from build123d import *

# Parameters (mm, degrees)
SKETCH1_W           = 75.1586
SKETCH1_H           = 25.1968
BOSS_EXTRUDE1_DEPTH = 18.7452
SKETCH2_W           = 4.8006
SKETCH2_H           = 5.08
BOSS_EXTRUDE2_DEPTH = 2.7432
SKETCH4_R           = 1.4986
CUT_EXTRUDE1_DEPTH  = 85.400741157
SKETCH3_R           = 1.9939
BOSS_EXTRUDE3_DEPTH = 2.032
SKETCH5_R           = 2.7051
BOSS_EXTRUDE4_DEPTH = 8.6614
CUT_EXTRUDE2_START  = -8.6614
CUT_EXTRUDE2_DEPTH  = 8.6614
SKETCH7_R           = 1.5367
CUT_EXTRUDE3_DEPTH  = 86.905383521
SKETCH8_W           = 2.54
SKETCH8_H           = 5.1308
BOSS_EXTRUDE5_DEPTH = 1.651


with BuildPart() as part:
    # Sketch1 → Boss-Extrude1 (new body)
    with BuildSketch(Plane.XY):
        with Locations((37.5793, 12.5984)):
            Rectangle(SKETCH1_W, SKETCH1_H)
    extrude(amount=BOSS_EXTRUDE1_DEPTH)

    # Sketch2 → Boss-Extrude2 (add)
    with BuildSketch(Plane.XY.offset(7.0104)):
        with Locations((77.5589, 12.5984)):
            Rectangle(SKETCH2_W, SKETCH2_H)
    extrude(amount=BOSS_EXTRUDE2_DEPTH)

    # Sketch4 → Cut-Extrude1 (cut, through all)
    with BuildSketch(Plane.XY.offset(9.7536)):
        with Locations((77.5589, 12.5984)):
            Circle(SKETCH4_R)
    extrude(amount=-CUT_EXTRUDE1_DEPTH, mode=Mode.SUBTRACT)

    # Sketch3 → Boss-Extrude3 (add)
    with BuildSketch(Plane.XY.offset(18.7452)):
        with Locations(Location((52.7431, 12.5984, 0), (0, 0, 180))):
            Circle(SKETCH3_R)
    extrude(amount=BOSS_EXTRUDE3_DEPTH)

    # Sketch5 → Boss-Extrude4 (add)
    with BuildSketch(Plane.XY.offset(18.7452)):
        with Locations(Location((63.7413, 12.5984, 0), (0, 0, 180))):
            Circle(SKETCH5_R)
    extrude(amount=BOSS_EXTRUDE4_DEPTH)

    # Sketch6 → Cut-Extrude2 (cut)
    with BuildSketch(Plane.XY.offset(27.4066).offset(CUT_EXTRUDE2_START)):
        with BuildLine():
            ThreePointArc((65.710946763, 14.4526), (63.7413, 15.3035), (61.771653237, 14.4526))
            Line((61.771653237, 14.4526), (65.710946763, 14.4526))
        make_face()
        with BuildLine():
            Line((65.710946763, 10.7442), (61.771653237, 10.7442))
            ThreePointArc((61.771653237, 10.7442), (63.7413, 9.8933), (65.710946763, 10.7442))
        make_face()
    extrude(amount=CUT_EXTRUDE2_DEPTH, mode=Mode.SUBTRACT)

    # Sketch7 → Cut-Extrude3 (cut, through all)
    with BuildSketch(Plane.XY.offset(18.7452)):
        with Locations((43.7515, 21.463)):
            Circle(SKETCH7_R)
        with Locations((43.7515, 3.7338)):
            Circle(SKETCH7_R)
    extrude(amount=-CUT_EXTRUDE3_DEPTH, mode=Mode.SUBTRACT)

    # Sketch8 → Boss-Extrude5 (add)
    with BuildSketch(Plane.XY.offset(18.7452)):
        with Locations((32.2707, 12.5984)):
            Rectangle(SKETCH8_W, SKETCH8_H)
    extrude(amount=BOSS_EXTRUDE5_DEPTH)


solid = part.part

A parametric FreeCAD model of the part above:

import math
import FreeCAD as App
import Part
import Sketcher
from FreeCAD import Vector
Q = App.Units.Quantity

doc = App.newDocument("Part")
body = doc.addObject("PartDesign::Body", "Body")

# Sketch on XY plane
sketch1 = body.newObject("Sketcher::SketchObject", "Sketch")
sketch1.AttachmentSupport = (doc.getObject("XY_Plane"), [""])
sketch1.MapMode = "FlatFace"
sketch1.addGeometry(Part.LineSegment(Vector(0, 25.1968, 0), Vector(0, 0, 0)), False)
sketch1.addGeometry(Part.LineSegment(Vector(0, 0, 0), Vector(75.1586, 0, 0)), False)
sketch1.addGeometry(Part.LineSegment(Vector(75.1586, 0, 0), Vector(75.1586, 25.1968, 0)), False)
sketch1.addGeometry(Part.LineSegment(Vector(75.1586, 25.1968, 0), Vector(0, 25.1968, 0)), False)
sketch1.addConstraint(Sketcher.Constraint("Coincident", 0, 2, 1, 1))
sketch1.addConstraint(Sketcher.Constraint("Coincident", 1, 2, 2, 1))
sketch1.addConstraint(Sketcher.Constraint("Coincident", 2, 2, 3, 1))
sketch1.addConstraint(Sketcher.Constraint("Coincident", 3, 2, 0, 1))
sketch1.addConstraint(Sketcher.Constraint("Vertical", 0))
sketch1.addConstraint(Sketcher.Constraint("Horizontal", 1))
sketch1.addConstraint(Sketcher.Constraint("Vertical", 2))
sketch1.addConstraint(Sketcher.Constraint("Horizontal", 3))
sketch1.addConstraint(Sketcher.Constraint("Coincident", 0, 2, -1, 1))
sketch1.addConstraint(Sketcher.Constraint("DistanceX", 1, 1, 1, 2, Q("2.959 in")))
sketch1.addConstraint(Sketcher.Constraint("DistanceY", 0, 2, 0, 1, Q("0.992 in")))
pad1 = body.newObject("PartDesign::Pad", "Pad")
pad1.Profile = sketch1
pad1.Length = Q("0.738 in")

# Sketch on XY plane
sketch2 = body.newObject("Sketcher::SketchObject", "Sketch001")
sketch2.AttachmentSupport = (doc.getObject("XY_Plane"), [""])
sketch2.MapMode = "FlatFace"
sketch2.AttachmentOffset = App.Placement(Vector(0, 0, 0.276 * 25.4), App.Rotation())
sketch2.addGeometry(Part.LineSegment(Vector(75.1586, 15.1384, 0), Vector(75.1586, 10.0584, 0)), False)
sketch2.addGeometry(Part.LineSegment(Vector(75.1586, 10.0584, 0), Vector(79.9592, 10.0584, 0)), False)
sketch2.addGeometry(Part.LineSegment(Vector(79.9592, 10.0584, 0), Vector(79.9592, 15.1384, 0)), False)
sketch2.addGeometry(Part.LineSegment(Vector(79.9592, 15.1384, 0), Vector(75.1586, 15.1384, 0)), False)
sketch2.addConstraint(Sketcher.Constraint("Coincident", 0, 2, 1, 1))
sketch2.addConstraint(Sketcher.Constraint("Coincident", 1, 2, 2, 1))
sketch2.addConstraint(Sketcher.Constraint("Coincident", 2, 2, 3, 1))
sketch2.addConstraint(Sketcher.Constraint("Coincident", 3, 2, 0, 1))
sketch2.addConstraint(Sketcher.Constraint("Vertical", 0))
sketch2.addConstraint(Sketcher.Constraint("Horizontal", 1))
sketch2.addConstraint(Sketcher.Constraint("Vertical", 2))
sketch2.addConstraint(Sketcher.Constraint("Horizontal", 3))
sketch2.addConstraint(Sketcher.Constraint("DistanceY", 0, 2, 0, 1, Q("0.2 in")))
sketch2.addConstraint(Sketcher.Constraint("DistanceX", 1, 1, 1, 2, Q("0.189 in")))
sketch2.addConstraint(Sketcher.Constraint("DistanceX", -1, 1, 0, 2, Q("2.959 in")))
sketch2.addConstraint(Sketcher.Constraint("DistanceY", -1, 1, 0, 2, Q("0.396 in")))
pad2 = body.newObject("PartDesign::Pad", "Pad001")
pad2.Profile = sketch2
pad2.Length = Q("0.108 in")

# Sketch on XY plane
sketch3 = body.newObject("Sketcher::SketchObject", "Sketch002")
sketch3.AttachmentSupport = (doc.getObject("XY_Plane"), [""])
sketch3.MapMode = "FlatFace"
sketch3.AttachmentOffset = App.Placement(Vector(0, 0, 0.384 * 25.4), App.Rotation())
sketch3.addGeometry(Part.Circle(Vector(77.5589, 12.5984, 0), Vector(0, 0, 1), 1.4986), False)
sketch3.addConstraint(Sketcher.Constraint("Diameter", 0, Q("0.118 in")))
sketch3.addConstraint(Sketcher.Constraint("DistanceY", -1, 1, 0, 3, Q("0.496 in")))
sketch3.addConstraint(Sketcher.Constraint("DistanceX", -1, 1, 0, 3, Q("3.0535 in")))
pocket1 = body.newObject("PartDesign::Pocket", "Pocket")
pocket1.Profile = sketch3
pocket1.Type = "ThroughAll"

# Sketch on XY plane
sketch4 = body.newObject("Sketcher::SketchObject", "Sketch003")
sketch4.AttachmentSupport = (doc.getObject("XY_Plane"), [""])
sketch4.MapMode = "FlatFace"
sketch4.AttachmentOffset = App.Placement(Vector(0, 0, 0.738 * 25.4), App.Rotation())
sketch4.addGeometry(Part.Circle(Vector(52.7431, 12.5984, 0), Vector(0, 0, 1), 1.9939), False)
sketch4.addConstraint(Sketcher.Constraint("Diameter", 0, Q("0.157 in")))
sketch4.addConstraint(Sketcher.Constraint("DistanceY", -1, 1, 0, 3, Q("0.496 in")))
sketch4.addConstraint(Sketcher.Constraint("DistanceX", -1, 1, 0, 3, Q("2.0765 in")))
pad3 = body.newObject("PartDesign::Pad", "Pad002")
pad3.Profile = sketch4
pad3.Length = Q("0.08 in")

# Sketch on XY plane
sketch5 = body.newObject("Sketcher::SketchObject", "Sketch004")
sketch5.AttachmentSupport = (doc.getObject("XY_Plane"), [""])
sketch5.MapMode = "FlatFace"
sketch5.AttachmentOffset = App.Placement(Vector(0, 0, 0.738 * 25.4), App.Rotation())
sketch5.addGeometry(Part.Circle(Vector(63.7413, 12.5984, 0), Vector(0, 0, 1), 2.7051), False)
sketch5.addConstraint(Sketcher.Constraint("Diameter", 0, Q("0.213 in")))
sketch5.addConstraint(Sketcher.Constraint("DistanceY", -1, 1, 0, 3, Q("0.496 in")))
sketch5.addConstraint(Sketcher.Constraint("DistanceX", -1, 1, 0, 3, Q("2.5095 in")))
pad4 = body.newObject("PartDesign::Pad", "Pad003")
pad4.Profile = sketch5
pad4.Length = Q("0.341 in")

# Sketch on XY plane
sketch6 = body.newObject("Sketcher::SketchObject", "Sketch005")
sketch6.AttachmentSupport = (doc.getObject("XY_Plane"), [""])
sketch6.MapMode = "FlatFace"
sketch6.AttachmentOffset = App.Placement(Vector(0, 0, 0.738 * 25.4), App.Rotation())
sketch6.addGeometry(Part.ArcOfCircle(Part.Circle(Vector(63.7413, 12.5984, 0), Vector(0, 0, 1), 2.7051), math.radians(43.270693), math.radians(136.729307)), False)
sketch6.addGeometry(Part.LineSegment(Vector(61.771653, 14.4526, 0), Vector(65.710947, 14.4526, 0)), False)
sketch6.addGeometry(Part.LineSegment(Vector(65.710947, 10.7442, 0), Vector(61.771653, 10.7442, 0)), False)
sketch6.addGeometry(Part.ArcOfCircle(Part.Circle(Vector(63.7413, 12.5984, 0), Vector(0, 0, 1), 2.7051), math.radians(-136.729307), math.radians(-43.270693)), False)
sketch6.addConstraint(Sketcher.Constraint("Coincident", 0, 1, 1, 2))
sketch6.addConstraint(Sketcher.Constraint("Coincident", 1, 1, 0, 2))
sketch6.addConstraint(Sketcher.Constraint("Coincident", 2, 1, 3, 2))
sketch6.addConstraint(Sketcher.Constraint("Coincident", 3, 1, 2, 2))
sketch6.addConstraint(Sketcher.Constraint("Horizontal", 1))
sketch6.addConstraint(Sketcher.Constraint("Horizontal", 2))
sketch6.addConstraint(Sketcher.Constraint("Coincident", 3, 3, 0, 3))
sketch6.addConstraint(Sketcher.Constraint("Equal", 0, 3))
sketch6.addConstraint(Sketcher.Constraint("Vertical", 0, 1, 2, 1))
sketch6.addConstraint(Sketcher.Constraint("Radius", 0, Q("0.1065 in")))
sketch6.addConstraint(Sketcher.Constraint("DistanceY", -1, 1, 0, 3, Q("0.496 in")))
sketch6.addConstraint(Sketcher.Constraint("DistanceY", -1, 1, 0, 1, Q("0.569 in")))
sketch6.addConstraint(Sketcher.Constraint("DistanceX", -1, 1, 0, 3, Q("2.5095 in")))
pocket2 = body.newObject("PartDesign::Pocket", "Pocket001")
pocket2.Profile = sketch6
pocket2.Length = Q("0.341 in")
pocket2.Reversed = True

# Sketch on XY plane
sketch7 = body.newObject("Sketcher::SketchObject", "Sketch006")
sketch7.AttachmentSupport = (doc.getObject("XY_Plane"), [""])
sketch7.MapMode = "FlatFace"
sketch7.AttachmentOffset = App.Placement(Vector(0, 0, 0.738 * 25.4), App.Rotation())
sketch7.addGeometry(Part.Circle(Vector(43.7515, 21.463, 0), Vector(0, 0, 1), 1.5367), False)
sketch7.addGeometry(Part.Circle(Vector(43.7515, 3.7338, 0), Vector(0, 0, 1), 1.5367), False)
sketch7.addConstraint(Sketcher.Constraint("Equal", 0, 1))
sketch7.addConstraint(Sketcher.Constraint("Vertical", 0, 3, 1, 3))
sketch7.addConstraint(Sketcher.Constraint("Diameter", 0, Q("0.121 in")))
sketch7.addConstraint(Sketcher.Constraint("DistanceY", -1, 1, 0, 3, Q("0.845 in")))
sketch7.addConstraint(Sketcher.Constraint("DistanceY", -1, 1, 1, 3, Q("0.147 in")))
sketch7.addConstraint(Sketcher.Constraint("DistanceX", -1, 1, 0, 3, Q("1.7225 in")))
pocket3 = body.newObject("PartDesign::Pocket", "Pocket002")
pocket3.Profile = sketch7
pocket3.Type = "ThroughAll"

# Sketch on XY plane
sketch8 = body.newObject("Sketcher::SketchObject", "Sketch007")
sketch8.AttachmentSupport = (doc.getObject("XY_Plane"), [""])
sketch8.MapMode = "FlatFace"
sketch8.AttachmentOffset = App.Placement(Vector(0, 0, 0.738 * 25.4), App.Rotation())
sketch8.addGeometry(Part.LineSegment(Vector(31.0007, 15.1638, 0), Vector(31.0007, 10.033, 0)), False)
sketch8.addGeometry(Part.LineSegment(Vector(31.0007, 10.033, 0), Vector(33.5407, 10.033, 0)), False)
sketch8.addGeometry(Part.LineSegment(Vector(33.5407, 10.033, 0), Vector(33.5407, 15.1638, 0)), False)
sketch8.addGeometry(Part.LineSegment(Vector(33.5407, 15.1638, 0), Vector(31.0007, 15.1638, 0)), False)
sketch8.addConstraint(Sketcher.Constraint("Coincident", 0, 2, 1, 1))
sketch8.addConstraint(Sketcher.Constraint("Coincident", 1, 2, 2, 1))
sketch8.addConstraint(Sketcher.Constraint("Coincident", 2, 2, 3, 1))
sketch8.addConstraint(Sketcher.Constraint("Coincident", 3, 2, 0, 1))
sketch8.addConstraint(Sketcher.Constraint("Vertical", 0))
sketch8.addConstraint(Sketcher.Constraint("Horizontal", 1))
sketch8.addConstraint(Sketcher.Constraint("Vertical", 2))
sketch8.addConstraint(Sketcher.Constraint("Horizontal", 3))
sketch8.addConstraint(Sketcher.Constraint("DistanceX", 1, 1, 1, 2, Q("0.1 in")))
sketch8.addConstraint(Sketcher.Constraint("DistanceY", 0, 2, 0, 1, Q("0.202 in")))
sketch8.addConstraint(Sketcher.Constraint("DistanceY", -1, 1, 0, 2, Q("0.395 in")))
sketch8.addConstraint(Sketcher.Constraint("DistanceX", -1, 1, 0, 2, Q("1.2205 in")))
pad5 = body.newObject("PartDesign::Pad", "Pad004")
pad5.Profile = sketch8
pad5.Length = Q("0.065 in")

doc.recompute()
